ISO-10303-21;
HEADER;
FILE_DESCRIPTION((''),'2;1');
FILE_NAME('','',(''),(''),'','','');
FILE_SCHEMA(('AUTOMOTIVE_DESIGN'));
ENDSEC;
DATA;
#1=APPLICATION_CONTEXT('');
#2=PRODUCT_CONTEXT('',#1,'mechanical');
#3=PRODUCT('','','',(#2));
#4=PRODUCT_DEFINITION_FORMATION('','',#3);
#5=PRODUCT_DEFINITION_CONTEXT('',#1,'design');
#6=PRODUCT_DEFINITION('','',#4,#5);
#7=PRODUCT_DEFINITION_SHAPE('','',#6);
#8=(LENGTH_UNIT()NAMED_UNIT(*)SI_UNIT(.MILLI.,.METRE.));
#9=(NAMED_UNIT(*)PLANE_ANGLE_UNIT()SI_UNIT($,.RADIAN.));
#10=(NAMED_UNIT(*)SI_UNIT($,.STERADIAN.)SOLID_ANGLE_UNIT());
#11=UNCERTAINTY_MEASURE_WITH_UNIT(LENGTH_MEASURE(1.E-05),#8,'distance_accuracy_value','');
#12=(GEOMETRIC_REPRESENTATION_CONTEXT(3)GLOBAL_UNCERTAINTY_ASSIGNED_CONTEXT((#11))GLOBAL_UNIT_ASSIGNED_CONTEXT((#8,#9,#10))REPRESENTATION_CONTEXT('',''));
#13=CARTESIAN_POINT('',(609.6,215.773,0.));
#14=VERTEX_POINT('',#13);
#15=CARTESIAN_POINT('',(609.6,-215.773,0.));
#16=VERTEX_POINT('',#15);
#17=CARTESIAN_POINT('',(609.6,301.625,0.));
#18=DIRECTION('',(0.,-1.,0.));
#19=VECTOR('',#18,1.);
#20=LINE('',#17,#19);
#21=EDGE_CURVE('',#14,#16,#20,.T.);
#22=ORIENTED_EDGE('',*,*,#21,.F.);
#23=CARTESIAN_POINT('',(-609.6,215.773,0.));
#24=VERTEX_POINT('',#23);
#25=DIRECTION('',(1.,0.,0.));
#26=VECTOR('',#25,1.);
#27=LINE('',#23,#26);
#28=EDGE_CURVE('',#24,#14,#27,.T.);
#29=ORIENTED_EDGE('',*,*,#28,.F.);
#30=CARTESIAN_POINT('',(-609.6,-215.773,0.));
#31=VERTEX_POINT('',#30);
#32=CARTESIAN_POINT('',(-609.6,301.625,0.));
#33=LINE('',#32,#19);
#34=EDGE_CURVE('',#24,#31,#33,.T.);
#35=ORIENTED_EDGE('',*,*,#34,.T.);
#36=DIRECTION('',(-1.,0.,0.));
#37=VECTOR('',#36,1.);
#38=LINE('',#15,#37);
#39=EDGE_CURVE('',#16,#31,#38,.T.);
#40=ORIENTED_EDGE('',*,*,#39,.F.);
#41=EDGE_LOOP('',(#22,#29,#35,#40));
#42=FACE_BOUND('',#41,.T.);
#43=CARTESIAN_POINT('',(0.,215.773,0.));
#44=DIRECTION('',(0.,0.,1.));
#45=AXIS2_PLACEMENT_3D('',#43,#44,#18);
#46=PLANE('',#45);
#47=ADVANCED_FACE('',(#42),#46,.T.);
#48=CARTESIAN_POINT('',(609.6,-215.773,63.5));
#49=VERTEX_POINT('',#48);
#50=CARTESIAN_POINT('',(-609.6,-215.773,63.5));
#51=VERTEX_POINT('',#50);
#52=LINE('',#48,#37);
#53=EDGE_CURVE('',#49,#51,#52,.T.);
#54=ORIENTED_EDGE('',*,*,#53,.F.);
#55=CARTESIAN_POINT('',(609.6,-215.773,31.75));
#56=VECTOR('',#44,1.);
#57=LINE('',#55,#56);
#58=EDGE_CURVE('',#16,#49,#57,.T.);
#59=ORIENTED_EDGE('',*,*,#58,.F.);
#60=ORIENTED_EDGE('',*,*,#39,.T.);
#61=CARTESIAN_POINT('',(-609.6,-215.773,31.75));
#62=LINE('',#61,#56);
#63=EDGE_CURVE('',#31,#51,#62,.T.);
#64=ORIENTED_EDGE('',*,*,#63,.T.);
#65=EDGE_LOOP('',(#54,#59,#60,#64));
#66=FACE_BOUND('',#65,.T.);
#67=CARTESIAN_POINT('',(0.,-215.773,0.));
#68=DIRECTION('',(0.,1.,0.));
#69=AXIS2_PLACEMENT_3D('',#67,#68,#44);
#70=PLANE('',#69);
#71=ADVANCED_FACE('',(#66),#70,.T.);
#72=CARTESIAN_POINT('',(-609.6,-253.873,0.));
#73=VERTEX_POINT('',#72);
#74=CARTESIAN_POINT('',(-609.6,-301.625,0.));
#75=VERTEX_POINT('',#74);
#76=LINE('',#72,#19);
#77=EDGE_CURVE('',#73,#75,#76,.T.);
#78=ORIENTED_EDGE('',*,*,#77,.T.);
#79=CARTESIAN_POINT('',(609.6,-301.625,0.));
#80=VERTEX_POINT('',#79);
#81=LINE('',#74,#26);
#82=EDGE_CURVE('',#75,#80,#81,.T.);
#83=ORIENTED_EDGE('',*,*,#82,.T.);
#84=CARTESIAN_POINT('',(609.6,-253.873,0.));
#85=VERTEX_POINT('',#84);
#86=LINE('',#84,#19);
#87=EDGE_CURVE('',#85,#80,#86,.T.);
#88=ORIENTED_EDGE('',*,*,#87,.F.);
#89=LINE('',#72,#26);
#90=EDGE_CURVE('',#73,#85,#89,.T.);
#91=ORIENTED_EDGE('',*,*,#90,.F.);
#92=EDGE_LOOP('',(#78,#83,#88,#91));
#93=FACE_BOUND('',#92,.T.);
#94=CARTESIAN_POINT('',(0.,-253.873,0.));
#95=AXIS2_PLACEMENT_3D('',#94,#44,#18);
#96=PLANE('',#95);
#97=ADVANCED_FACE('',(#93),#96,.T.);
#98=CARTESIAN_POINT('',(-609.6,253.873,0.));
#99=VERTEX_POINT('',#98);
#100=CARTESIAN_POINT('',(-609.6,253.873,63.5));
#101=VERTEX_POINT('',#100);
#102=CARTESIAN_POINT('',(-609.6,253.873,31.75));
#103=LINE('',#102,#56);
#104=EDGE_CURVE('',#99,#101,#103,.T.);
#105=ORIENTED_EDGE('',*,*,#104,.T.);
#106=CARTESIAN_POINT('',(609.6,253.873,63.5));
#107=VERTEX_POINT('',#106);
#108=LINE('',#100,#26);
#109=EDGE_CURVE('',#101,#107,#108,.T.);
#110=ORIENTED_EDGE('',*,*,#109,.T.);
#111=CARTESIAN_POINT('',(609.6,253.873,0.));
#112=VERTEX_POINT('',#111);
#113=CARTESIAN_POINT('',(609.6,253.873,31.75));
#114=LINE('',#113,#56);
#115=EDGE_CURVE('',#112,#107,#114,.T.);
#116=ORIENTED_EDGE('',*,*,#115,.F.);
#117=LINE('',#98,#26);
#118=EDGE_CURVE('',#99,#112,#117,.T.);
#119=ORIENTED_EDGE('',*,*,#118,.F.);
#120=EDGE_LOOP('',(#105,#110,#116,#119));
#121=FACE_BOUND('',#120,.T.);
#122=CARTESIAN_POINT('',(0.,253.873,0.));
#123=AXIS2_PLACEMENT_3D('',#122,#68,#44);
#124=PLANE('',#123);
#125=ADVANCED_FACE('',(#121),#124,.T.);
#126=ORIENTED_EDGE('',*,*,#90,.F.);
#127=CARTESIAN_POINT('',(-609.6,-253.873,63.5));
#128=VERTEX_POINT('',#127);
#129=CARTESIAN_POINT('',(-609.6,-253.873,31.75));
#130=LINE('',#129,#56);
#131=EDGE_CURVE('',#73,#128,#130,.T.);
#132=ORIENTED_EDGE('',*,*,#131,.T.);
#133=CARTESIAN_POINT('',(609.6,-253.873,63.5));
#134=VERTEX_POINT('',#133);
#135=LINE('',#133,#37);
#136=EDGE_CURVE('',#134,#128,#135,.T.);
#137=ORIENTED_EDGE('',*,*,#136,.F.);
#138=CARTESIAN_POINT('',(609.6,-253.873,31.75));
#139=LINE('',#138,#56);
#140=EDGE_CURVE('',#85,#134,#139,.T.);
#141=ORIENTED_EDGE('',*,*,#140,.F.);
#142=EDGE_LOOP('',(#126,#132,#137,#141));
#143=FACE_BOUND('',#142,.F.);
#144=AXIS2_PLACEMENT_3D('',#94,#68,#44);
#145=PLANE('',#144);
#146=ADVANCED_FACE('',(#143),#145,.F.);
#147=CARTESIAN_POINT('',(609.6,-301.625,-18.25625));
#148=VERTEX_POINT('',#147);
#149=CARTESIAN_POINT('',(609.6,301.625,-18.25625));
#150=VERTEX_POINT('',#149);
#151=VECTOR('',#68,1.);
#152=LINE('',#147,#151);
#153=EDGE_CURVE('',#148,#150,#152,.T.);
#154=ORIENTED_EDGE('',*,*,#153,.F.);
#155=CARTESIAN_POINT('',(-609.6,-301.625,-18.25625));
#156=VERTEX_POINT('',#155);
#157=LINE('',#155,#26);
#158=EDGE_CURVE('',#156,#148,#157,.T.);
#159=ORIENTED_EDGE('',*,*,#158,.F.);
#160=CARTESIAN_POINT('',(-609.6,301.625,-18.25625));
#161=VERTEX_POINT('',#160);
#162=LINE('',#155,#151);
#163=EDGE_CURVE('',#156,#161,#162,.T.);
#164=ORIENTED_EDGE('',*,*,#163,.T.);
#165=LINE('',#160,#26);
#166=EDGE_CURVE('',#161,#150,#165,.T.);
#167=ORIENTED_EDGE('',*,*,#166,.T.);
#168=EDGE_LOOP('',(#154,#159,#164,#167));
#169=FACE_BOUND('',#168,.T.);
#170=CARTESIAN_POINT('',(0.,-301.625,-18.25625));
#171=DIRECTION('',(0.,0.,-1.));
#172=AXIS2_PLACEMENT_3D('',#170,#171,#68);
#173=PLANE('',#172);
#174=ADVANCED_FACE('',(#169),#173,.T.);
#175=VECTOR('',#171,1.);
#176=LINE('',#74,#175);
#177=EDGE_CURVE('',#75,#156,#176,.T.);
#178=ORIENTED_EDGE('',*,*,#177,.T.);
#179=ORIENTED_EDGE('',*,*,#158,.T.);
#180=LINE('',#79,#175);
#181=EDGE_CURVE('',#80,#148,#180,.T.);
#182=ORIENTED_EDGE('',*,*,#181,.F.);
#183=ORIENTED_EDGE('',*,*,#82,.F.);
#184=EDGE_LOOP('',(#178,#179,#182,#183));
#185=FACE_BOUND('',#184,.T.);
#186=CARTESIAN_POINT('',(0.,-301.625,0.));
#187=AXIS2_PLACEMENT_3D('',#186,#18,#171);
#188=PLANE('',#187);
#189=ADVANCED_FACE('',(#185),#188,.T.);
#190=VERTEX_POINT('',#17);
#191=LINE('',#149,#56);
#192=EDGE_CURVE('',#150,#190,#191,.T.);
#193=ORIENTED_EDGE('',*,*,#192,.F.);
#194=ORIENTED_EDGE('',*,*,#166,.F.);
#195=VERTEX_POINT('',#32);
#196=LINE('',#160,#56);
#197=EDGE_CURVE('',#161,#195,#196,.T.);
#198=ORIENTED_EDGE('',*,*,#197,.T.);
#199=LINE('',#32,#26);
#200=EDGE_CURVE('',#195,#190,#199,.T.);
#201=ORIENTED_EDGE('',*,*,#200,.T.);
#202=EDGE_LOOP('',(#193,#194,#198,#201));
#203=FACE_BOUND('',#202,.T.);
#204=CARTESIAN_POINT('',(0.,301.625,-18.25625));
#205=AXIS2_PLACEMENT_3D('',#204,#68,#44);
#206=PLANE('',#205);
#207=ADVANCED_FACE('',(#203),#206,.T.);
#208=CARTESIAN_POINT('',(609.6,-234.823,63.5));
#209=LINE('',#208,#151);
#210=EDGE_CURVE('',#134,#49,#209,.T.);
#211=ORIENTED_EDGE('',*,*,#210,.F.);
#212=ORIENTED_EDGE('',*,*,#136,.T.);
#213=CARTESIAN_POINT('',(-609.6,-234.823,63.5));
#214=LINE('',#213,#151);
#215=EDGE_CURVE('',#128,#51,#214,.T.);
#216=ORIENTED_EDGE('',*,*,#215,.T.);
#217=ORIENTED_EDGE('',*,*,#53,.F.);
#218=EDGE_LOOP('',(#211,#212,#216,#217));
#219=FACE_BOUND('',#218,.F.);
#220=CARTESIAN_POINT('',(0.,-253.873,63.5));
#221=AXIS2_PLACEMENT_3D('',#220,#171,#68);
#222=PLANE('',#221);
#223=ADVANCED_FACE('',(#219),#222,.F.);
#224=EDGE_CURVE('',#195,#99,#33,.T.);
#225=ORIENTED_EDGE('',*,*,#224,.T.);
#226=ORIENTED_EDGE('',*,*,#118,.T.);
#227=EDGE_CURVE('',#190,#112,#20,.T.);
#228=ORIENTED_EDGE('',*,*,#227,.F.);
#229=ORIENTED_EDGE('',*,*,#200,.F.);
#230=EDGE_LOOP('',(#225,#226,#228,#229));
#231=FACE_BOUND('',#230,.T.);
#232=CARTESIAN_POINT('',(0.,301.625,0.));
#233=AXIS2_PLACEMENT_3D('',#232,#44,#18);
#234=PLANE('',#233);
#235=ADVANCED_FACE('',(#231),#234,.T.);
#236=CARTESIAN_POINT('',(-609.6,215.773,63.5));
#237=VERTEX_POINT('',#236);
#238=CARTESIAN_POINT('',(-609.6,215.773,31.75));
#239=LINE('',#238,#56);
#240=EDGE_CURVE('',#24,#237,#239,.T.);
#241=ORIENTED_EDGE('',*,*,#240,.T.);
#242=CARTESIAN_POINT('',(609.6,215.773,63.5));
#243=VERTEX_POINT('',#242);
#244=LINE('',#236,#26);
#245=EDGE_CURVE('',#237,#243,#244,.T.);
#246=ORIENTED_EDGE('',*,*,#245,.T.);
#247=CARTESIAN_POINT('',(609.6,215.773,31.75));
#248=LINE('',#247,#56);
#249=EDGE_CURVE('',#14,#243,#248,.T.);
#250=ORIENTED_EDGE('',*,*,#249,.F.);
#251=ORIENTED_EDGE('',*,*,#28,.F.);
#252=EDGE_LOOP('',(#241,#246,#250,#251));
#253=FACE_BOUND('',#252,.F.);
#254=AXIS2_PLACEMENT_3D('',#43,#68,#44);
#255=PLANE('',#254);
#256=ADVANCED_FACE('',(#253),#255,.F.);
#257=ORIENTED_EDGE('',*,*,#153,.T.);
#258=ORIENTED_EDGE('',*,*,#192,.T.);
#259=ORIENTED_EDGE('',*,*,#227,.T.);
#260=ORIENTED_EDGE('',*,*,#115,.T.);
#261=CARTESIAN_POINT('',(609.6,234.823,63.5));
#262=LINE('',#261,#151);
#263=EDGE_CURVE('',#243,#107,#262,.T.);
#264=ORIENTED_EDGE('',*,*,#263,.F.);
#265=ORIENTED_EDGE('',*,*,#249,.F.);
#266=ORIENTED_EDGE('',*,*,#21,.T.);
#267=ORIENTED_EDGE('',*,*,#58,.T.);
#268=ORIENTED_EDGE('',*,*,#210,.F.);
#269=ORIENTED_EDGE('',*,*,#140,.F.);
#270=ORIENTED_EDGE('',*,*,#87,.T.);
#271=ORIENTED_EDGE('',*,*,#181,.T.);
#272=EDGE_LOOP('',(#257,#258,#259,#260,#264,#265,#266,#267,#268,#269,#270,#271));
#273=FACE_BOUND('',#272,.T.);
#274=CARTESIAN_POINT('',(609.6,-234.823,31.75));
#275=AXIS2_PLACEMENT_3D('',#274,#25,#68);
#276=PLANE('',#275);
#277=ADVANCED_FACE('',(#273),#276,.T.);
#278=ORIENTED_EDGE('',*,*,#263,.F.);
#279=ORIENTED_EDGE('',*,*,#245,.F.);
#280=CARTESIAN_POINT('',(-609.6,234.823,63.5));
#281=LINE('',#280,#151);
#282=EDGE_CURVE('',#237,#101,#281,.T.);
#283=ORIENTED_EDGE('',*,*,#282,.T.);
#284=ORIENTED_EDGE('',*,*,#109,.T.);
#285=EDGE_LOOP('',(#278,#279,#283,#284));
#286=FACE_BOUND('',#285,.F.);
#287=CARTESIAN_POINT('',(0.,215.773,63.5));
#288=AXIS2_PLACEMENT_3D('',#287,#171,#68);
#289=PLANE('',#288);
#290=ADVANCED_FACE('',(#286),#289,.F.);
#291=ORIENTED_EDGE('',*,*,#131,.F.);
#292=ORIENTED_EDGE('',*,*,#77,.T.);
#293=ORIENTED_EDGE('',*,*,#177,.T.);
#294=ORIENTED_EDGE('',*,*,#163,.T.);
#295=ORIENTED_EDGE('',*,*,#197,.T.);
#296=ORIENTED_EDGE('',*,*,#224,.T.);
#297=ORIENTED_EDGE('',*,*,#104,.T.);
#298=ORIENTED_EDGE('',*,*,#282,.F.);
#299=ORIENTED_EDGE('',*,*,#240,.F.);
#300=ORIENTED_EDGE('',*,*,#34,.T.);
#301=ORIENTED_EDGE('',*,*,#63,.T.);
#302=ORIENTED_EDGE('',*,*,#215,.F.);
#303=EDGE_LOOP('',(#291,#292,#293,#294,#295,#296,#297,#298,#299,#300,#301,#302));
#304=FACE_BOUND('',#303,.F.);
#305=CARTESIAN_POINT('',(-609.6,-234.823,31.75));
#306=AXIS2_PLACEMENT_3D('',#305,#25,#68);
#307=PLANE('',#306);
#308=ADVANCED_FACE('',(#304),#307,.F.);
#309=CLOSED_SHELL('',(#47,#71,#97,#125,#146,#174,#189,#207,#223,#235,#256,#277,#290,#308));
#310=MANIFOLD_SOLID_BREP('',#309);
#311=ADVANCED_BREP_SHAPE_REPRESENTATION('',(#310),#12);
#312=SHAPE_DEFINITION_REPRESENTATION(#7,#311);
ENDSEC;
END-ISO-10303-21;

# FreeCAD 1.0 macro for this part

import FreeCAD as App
import Part
import Sketcher
from FreeCAD import Vector
Q = App.Units.Quantity

doc = App.newDocument("Part")
body = doc.addObject("PartDesign::Body", "Body")

# Sketch on YZ plane
sketch1 = body.newObject("Sketcher::SketchObject", "Sketch")
sketch1.AttachmentSupport = (doc.getObject("YZ_Plane"), [""])
sketch1.MapMode = "FlatFace"
sketch1.addGeometry([
    Part.LineSegment(Vector(-253.873, 63.5, 0), Vector(-253.873, 0, 0)),  # 0
    Part.LineSegment(Vector(-253.873, 0, 0), Vector(-301.625, 0, 0)),  # 1
    Part.LineSegment(Vector(-301.625, 0, 0), Vector(-301.625, -18.25625, 0)),  # 2
    Part.LineSegment(Vector(-301.625, -18.25625, 0), Vector(301.625, -18.25625, 0)),  # 3
    Part.LineSegment(Vector(301.625, -18.25625, 0), Vector(301.625, 0, 0)),  # 4
    Part.LineSegment(Vector(301.625, 0, 0), Vector(253.873, 0, 0)),  # 5
    Part.LineSegment(Vector(253.873, 0, 0), Vector(253.873, 63.5, 0)),  # 6
    Part.LineSegment(Vector(253.873, 63.5, 0), Vector(215.773, 63.5, 0)),  # 7
    Part.LineSegment(Vector(215.773, 63.5, 0), Vector(215.773, 0, 0)),  # 8
    Part.LineSegment(Vector(215.773, 0, 0), Vector(-215.773, 0, 0)),  # 9
    Part.LineSegment(Vector(-215.773, 0, 0), Vector(-215.773, 63.5, 0)),  # 10
    Part.LineSegment(Vector(-215.773, 63.5, 0), Vector(-253.873, 63.5, 0)),  # 11
], False)
sketch1.addConstraint([
    Sketcher.Constraint("Coincident", 0, 2, 1, 1),
    Sketcher.Constraint("Coincident", 1, 2, 2, 1),
    Sketcher.Constraint("Coincident", 2, 2, 3, 1),
    Sketcher.Constraint("Coincident", 3, 2, 4, 1),
    Sketcher.Constraint("Coincident", 4, 2, 5, 1),
    Sketcher.Constraint("Coincident", 5, 2, 6, 1),
    Sketcher.Constraint("Coincident", 6, 2, 7, 1),
    Sketcher.Constraint("Coincident", 7, 2, 8, 1),
    Sketcher.Constraint("Coincident", 8, 2, 9, 1),
    Sketcher.Constraint("Coincident", 9, 2, 10, 1),
    Sketcher.Constraint("Coincident", 10, 2, 11, 1),
    Sketcher.Constraint("Coincident", 11, 2, 0, 1),
    Sketcher.Constraint("Vertical", 0),
    Sketcher.Constraint("Horizontal", 1),
    Sketcher.Constraint("Vertical", 2),
    Sketcher.Constraint("Horizontal", 3),
    Sketcher.Constraint("Vertical", 4),
    Sketcher.Constraint("Horizontal", 5),
    Sketcher.Constraint("Vertical", 6),
    Sketcher.Constraint("Horizontal", 7),
    Sketcher.Constraint("Vertical", 8),
    Sketcher.Constraint("Horizontal", 9),
    Sketcher.Constraint("Vertical", 10),
    Sketcher.Constraint("Horizontal", 11),
    Sketcher.Constraint("Symmetric", 1, 2, 4, 2, -1, 1),
    Sketcher.Constraint("Symmetric", 8, 2, 9, 2, -1, 1),
    Sketcher.Constraint("Symmetric", 0, 2, 5, 2, -2),
    Sketcher.Constraint("Horizontal", 7, 2, 10, 2),
    Sketcher.Constraint("DistanceX", 7, 2, 7, 1, Q("1.5 in")),
    Sketcher.Constraint("DistanceY", 0, 2, 0, 1, Q("2.5 in")),
    Sketcher.Constraint("DistanceX", 1, 2, 1, 1, Q("1.88 in")),
    Sketcher.Constraint("DistanceX", 3, 1, 3, 2, Q("23.75 in")),
    Sketcher.Constraint("DistanceY", 2, 2, 2, 1, Q("0.71875 in")),
])
pad1 = body.newObject("PartDesign::Pad", "Pad")
pad1.Profile = sketch1
pad1.Length = Q("48 in")
pad1.Midplane = True

doc.recompute()
